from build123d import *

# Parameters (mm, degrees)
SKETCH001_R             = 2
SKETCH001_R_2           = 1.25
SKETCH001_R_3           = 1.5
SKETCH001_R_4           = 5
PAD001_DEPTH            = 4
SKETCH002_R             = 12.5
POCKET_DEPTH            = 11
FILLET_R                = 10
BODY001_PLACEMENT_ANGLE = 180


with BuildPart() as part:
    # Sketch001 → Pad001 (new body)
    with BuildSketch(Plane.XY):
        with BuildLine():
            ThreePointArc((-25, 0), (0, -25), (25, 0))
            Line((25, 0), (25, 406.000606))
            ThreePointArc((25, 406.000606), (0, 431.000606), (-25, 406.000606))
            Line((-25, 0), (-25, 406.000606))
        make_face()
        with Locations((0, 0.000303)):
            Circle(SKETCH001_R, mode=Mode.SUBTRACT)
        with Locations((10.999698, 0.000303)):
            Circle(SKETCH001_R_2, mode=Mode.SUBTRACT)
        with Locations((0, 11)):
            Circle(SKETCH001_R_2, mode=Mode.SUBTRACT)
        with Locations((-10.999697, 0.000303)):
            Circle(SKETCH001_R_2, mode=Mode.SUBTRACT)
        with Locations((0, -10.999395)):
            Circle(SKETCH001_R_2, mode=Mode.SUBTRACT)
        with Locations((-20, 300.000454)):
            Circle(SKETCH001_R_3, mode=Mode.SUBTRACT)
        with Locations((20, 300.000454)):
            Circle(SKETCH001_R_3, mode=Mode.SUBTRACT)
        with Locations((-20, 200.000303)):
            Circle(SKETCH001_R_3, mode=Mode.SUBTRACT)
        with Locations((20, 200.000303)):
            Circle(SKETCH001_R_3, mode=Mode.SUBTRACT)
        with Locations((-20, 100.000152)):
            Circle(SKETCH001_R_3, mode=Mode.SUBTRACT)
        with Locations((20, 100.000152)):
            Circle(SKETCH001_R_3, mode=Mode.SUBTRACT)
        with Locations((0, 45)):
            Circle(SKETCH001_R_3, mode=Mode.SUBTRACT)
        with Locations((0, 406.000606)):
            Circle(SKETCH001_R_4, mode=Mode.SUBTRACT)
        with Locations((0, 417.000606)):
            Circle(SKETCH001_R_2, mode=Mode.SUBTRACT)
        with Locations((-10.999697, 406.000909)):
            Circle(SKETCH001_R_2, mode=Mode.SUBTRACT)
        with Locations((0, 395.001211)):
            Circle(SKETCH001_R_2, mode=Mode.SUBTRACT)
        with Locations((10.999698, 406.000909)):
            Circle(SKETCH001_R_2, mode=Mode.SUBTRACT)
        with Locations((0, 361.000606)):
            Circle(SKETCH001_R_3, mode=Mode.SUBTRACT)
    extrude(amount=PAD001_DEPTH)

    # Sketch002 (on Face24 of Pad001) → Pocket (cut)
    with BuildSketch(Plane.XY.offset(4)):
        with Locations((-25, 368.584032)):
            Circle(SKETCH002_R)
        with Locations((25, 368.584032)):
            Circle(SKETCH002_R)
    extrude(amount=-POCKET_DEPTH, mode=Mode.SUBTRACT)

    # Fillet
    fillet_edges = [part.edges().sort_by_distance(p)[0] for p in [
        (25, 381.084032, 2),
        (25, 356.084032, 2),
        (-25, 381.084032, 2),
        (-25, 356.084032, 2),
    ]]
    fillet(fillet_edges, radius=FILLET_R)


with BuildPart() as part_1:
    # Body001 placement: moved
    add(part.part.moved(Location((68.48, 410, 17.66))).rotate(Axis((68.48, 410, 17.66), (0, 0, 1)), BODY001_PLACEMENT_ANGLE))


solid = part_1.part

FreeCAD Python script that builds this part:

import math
import FreeCAD as App
import Part
import Sketcher

V = App.Vector
Q = App.Units.Quantity


def edges_at(feature, points):
    """Names of the edges that pass closest to the given points."""
    edges = feature.Shape.Edges
    near = lambda p: min(range(len(edges)), key=lambda i: edges[i].distToShape(Part.Vertex(*p))[0])
    return sorted({f"Edge{near(p) + 1}" for p in points})

doc = App.newDocument("Part")
body = doc.addObject("PartDesign::Body", "Body")

# Sketch on XY plane
sketch1 = doc.addObject("Sketcher::SketchObject", "Sketch")
body.addObject(sketch1)
sketch1.AttachmentSupport = (doc.XY_Plane, [""])
sketch1.MapMode = "FlatFace"
sketch1.addGeometry(Part.ArcOfCircle(Part.Circle(V(0, 0, 0), V(0, 0, 1), 25), math.radians(180), math.radians(360)), False)
sketch1.addGeometry(Part.LineSegment(V(25, 0, 0), V(25, 406, 0)), False)
sketch1.addGeometry(Part.ArcOfCircle(Part.Circle(V(0, 406, 0), V(0, 0, 1), 25), math.radians(0), math.radians(180)), False)
sketch1.addGeometry(Part.LineSegment(V(-25, 406, 0), V(-25, 0, 0)), False)
sketch1.addGeometry(Part.Circle(V(-11, 0, 0), V(0, 0, 1), 1.2), False)
sketch1.addGeometry(Part.Circle(V(-20, 100, 0), V(0, 0, 1), 1.5), False)
sketch1.addGeometry(Part.Circle(V(-20, 200, 0), V(0, 0, 1), 1.5), False)
sketch1.addGeometry(Part.Circle(V(0, -11, 0), V(0, 0, 1), 1.2), False)
sketch1.addGeometry(Part.Circle(V(0, 0, 0), V(0, 0, 1), 2), False)
sketch1.addGeometry(Part.Circle(V(0, 11, 0), V(0, 0, 1), 1.2), False)
sketch1.addGeometry(Part.Circle(V(0, 45, 0), V(0, 0, 1), 1.5), False)
sketch1.addGeometry(Part.Circle(V(11, 0, 0), V(0, 0, 1), 1.2), False)
sketch1.addGeometry(Part.Circle(V(20, 100, 0), V(0, 0, 1), 1.5), False)
sketch1.addGeometry(Part.Circle(V(20, 200, 0), V(0, 0, 1), 1.5), False)
sketch1.addGeometry(Part.Circle(V(-20, 300, 0), V(0, 0, 1), 1.5), False)
sketch1.addGeometry(Part.Circle(V(-11, 406, 0), V(0, 0, 1), 1.2), False)
sketch1.addGeometry(Part.Circle(V(20, 300, 0), V(0, 0, 1), 1.5), False)
sketch1.addGeometry(Part.Circle(V(0, 361, 0), V(0, 0, 1), 1.5), False)
sketch1.addGeometry(Part.Circle(V(0, 395, 0), V(0, 0, 1), 1.2), False)
sketch1.addGeometry(Part.Circle(V(0, 406, 0), V(0, 0, 1), 5), False)
sketch1.addGeometry(Part.Circle(V(0, 417, 0), V(0, 0, 1), 1.2), False)
sketch1.addGeometry(Part.Circle(V(11, 406, 0), V(0, 0, 1), 1.2), False)
sketch1.addConstraint(Sketcher.Constraint("Tangent", 0, 2, 1, 1))
sketch1.addConstraint(Sketcher.Constraint("Tangent", 1, 2, 2, 1))
sketch1.addConstraint(Sketcher.Constraint("Tangent", 2, 2, 3, 1))
sketch1.addConstraint(Sketcher.Constraint("Tangent", 3, 2, 0, 1))
sketch1.addConstraint(Sketcher.Constraint("Vertical", 1))
sketch1.addConstraint(Sketcher.Constraint("Vertical", 3))
sketch1.addConstraint(Sketcher.Constraint("Coincident", 0, 3, -1, 1))
sketch1.addConstraint(Sketcher.Constraint("Coincident", 19, 3, 2, 3))
sketch1.addConstraint(Sketcher.Constraint("Equal", 5, 6))
sketch1.addConstraint(Sketcher.Constraint("Equal", 4, 7))
sketch1.addConstraint(Sketcher.Constraint("Equal", 7, 9))
sketch1.addConstraint(Sketcher.Constraint("Equal", 6, 10))
sketch1.addConstraint(Sketcher.Constraint("Equal", 9, 11))
sketch1.addConstraint(Sketcher.Constraint("Equal", 10, 12))
sketch1.addConstraint(Sketcher.Constraint("Equal", 12, 13))
sketch1.addConstraint(Sketcher.Constraint("Equal", 13, 14))
sketch1.addConstraint(Sketcher.Constraint("Equal", 11, 15))
sketch1.addConstraint(Sketcher.Constraint("Equal", 14, 16))
sketch1.addConstraint(Sketcher.Constraint("Equal", 16, 17))
sketch1.addConstraint(Sketcher.Constraint("Equal", 15, 18))
sketch1.addConstraint(Sketcher.Constraint("Equal", 18, 20))
sketch1.addConstraint(Sketcher.Constraint("Equal", 20, 21))
sketch1.addConstraint(Sketcher.Constraint("Symmetric", 4, 3, 11, 3, -2))
sketch1.addConstraint(Sketcher.Constraint("Symmetric", 5, 3, 12, 3, -2))
sketch1.addConstraint(Sketcher.Constraint("Symmetric", 6, 3, 13, 3, -2))
sketch1.addConstraint(Sketcher.Constraint("Symmetric", 14, 3, 16, 3, -2))
sketch1.addConstraint(Sketcher.Constraint("Symmetric", 15, 3, 21, 3, -2))
sketch1.addConstraint(Sketcher.Constraint("PointOnObject", 7, 3, -2))
sketch1.addConstraint(Sketcher.Constraint("PointOnObject", 8, 3, -2))
sketch1.addConstraint(Sketcher.Constraint("PointOnObject", 9, 3, -2))
sketch1.addConstraint(Sketcher.Constraint("PointOnObject", 10, 3, -2))
sketch1.addConstraint(Sketcher.Constraint("PointOnObject", 17, 3, -2))
sketch1.addConstraint(Sketcher.Constraint("PointOnObject", 18, 3, -2))
sketch1.addConstraint(Sketcher.Constraint("PointOnObject", 20, 3, -2))
sketch1.addConstraint(Sketcher.Constraint("Horizontal", 4, 3, 8, 3))
sketch1.addConstraint(Sketcher.Constraint("Vertical", 5, 3, 6, 3))
sketch1.addConstraint(Sketcher.Constraint("Vertical", 6, 3, 14, 3))
sketch1.addConstraint(Sketcher.Constraint("Vertical", 4, 3, 15, 3))
sketch1.addConstraint(Sketcher.Constraint("Diameter", 5, Q("3 mm")))
sketch1.addConstraint(Sketcher.Constraint("Diameter", 8, Q("4 mm")))
sketch1.addConstraint(Sketcher.Constraint("Diameter", 19, Q("10 mm")))
sketch1.addConstraint(Sketcher.Constraint("Radius", 0, Q("25 mm")))
sketch1.addConstraint(Sketcher.Constraint("Diameter", 4, Q("2.5 mm")))
sketch1.addConstraint(Sketcher.Constraint("DistanceX", 5, 3, -1, 1, Q("20 mm")))
sketch1.addConstraint(Sketcher.Constraint("DistanceY", -1, 1, 9, 3, Q("11 mm")))
sketch1.addConstraint(Sketcher.Constraint("DistanceY", -1, 1, 10, 3, Q("45 mm")))
sketch1.addConstraint(Sketcher.Constraint("DistanceY", 4, 3, 6, 3, Q("200 mm")))
sketch1.addConstraint(Sketcher.Constraint("DistanceY", 7, 3, 2, 3, Q("417.000001 mm")))
sketch1.addConstraint(Sketcher.Constraint("DistanceY", 17, 3, 2, 3, Q("45 mm")))
sketch1.addConstraint(Sketcher.Constraint("DistanceY", 2, 3, 20, 3, Q("11 mm")))
sketch1.addConstraint(Sketcher.Constraint("DistanceY", 7, 3, 6, 3, Q("210.999698 mm")))
sketch1.addConstraint(Sketcher.Constraint("DistanceY", 5, 3, 14, 3, Q("200.000302 mm")))
sketch1.addConstraint(Sketcher.Constraint("DistanceY", 1, 1, 1, 2, Q("406.000606 mm")))
sketch1.addConstraint(Sketcher.Constraint("DistanceY", -1, 1, 5, 3, Q("100.000152 mm")))
sketch1.addConstraint(Sketcher.Constraint("DistanceY", -1, 1, 15, 3, Q("406.000909 mm")))
sketch1.addConstraint(Sketcher.Constraint("DistanceY", -1, 1, 18, 3, Q("395.001211 mm")))
sketch1.addConstraint(Sketcher.Constraint("DistanceX", 4, 3, -1, 1, Q("10.999697 mm")))
pad1 = doc.addObject("PartDesign::Pad", "Pad")
body.addObject(pad1)
pad1.Profile = sketch1
pad1.Length = 4

# Sketch on XY plane
sketch2 = doc.addObject("Sketcher::SketchObject", "Sketch001")
body.addObject(sketch2)
sketch2.AttachmentSupport = (doc.XY_Plane, [""])
sketch2.MapMode = "FlatFace"
sketch2.AttachmentOffset = App.Placement(V(0, 0, 4), App.Rotation())
sketch2.addGeometry(Part.Circle(V(-25, 369, 0), V(0, 0, 1), 12), False)
sketch2.addGeometry(Part.Circle(V(25, 369, 0), V(0, 0, 1), 12), False)
sketch2.addConstraint(Sketcher.Constraint("Equal", 0, 1))
sketch2.addConstraint(Sketcher.Constraint("Symmetric", 0, 3, 1, 3, -2))
sketch2.addConstraint(Sketcher.Constraint("Diameter", 0, Q("25 mm")))
sketch2.addConstraint(Sketcher.Constraint("DistanceX", 0, 3, -1, 1, Q("25 mm")))
sketch2.addConstraint(Sketcher.Constraint("DistanceY", -1, 1, 0, 3, Q("368.584032 mm")))
pocket1 = doc.addObject("PartDesign::Pocket", "Pocket")
body.addObject(pocket1)
pocket1.Profile = sketch2
pocket1.Length = 11
doc.recompute()

fillet = doc.addObject("PartDesign::Fillet", "Fillet")
body.addObject(fillet)
fillet.Base = (pocket1, edges_at(pocket1, [
    (25, 381.084, 2),
    (25, 356.084, 2),
    (-25, 381.084, 2),
    (-25, 356.084, 2),
]))
fillet.Radius = 10
body2 = doc.addObject("PartDesign::Body", "Body001")
doc.recompute()

body.Placement = App.Placement(V(68.48, 410, 17.66), App.Rotation(V(0, 0, 1), 180))
boolean = doc.addObject("PartDesign::Boolean", "Boolean")
body2.addObject(boolean)
boolean.Type = "Fuse"
boolean.addObjects([body])

doc.recompute()
